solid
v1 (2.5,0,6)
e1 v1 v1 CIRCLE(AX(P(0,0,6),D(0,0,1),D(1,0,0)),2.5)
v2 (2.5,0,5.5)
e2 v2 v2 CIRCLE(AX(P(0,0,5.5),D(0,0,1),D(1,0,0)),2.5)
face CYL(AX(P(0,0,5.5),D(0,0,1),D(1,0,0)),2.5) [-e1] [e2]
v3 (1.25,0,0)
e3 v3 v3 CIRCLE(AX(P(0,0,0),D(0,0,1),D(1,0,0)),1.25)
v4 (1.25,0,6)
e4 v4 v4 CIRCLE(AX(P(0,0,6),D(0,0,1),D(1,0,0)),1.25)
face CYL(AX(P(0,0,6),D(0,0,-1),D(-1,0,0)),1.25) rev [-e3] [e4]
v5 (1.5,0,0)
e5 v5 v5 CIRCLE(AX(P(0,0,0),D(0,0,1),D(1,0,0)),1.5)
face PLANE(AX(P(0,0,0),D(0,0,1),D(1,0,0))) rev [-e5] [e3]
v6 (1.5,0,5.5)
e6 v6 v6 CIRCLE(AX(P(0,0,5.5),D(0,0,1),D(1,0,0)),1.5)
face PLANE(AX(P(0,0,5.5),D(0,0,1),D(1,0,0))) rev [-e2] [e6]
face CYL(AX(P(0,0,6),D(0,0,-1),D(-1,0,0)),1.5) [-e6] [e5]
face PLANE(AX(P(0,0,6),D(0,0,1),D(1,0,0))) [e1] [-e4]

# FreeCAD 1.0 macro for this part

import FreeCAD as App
import Part
import Sketcher

V = App.Vector
Q = App.Units.Quantity

doc = App.newDocument("Part")
body = doc.addObject("PartDesign::Body", "Body")

# Sketch on XY plane
sketch1 = body.newObject("Sketcher::SketchObject", "Sketch")
sketch1.AttachmentSupport = (doc.getObject("XY_Plane"), [""])
sketch1.MapMode = "FlatFace"
sketch1.addGeometry([
    Part.Circle(V(0, 0, 0), V(0, 0, 1), 1.5),
    Part.Circle(V(0, 0, 0), V(0, 0, 1), 1.2),
], False)
sketch1.addConstraint([
    Sketcher.Constraint("Coincident", 0, 3, -1, 1),
    Sketcher.Constraint("Coincident", 1, 3, -1, 1),
    Sketcher.Constraint("Diameter", 0, Q("3 mm")),
    Sketcher.Constraint("Diameter", 1, Q("2.5 mm")),
])
pad1 = body.newObject("PartDesign::Pad", "Pad")
pad1.Profile = sketch1
pad1.Length = 6

# Sketch on XY plane
sketch2 = body.newObject("Sketcher::SketchObject", "Sketch001")
sketch2.AttachmentSupport = (doc.getObject("XY_Plane"), [""])
sketch2.MapMode = "FlatFace"
sketch2.AttachmentOffset = App.Placement(V(0, 0, 6), App.Rotation())
sketch2.addGeometry([
    Part.Circle(V(0, 0, 0), V(0, 0, 1), 2.5),
    Part.Circle(V(0, 0, 0), V(0, 0, 1), 1.2),
], False)
sketch2.addConstraint([
    Sketcher.Constraint("Coincident", 0, 3, -1, 1),
    Sketcher.Constraint("Coincident", 1, 3, -1, 1),
    Sketcher.Constraint("Diameter", 0, Q("5 mm")),
    Sketcher.Constraint("Diameter", 1, Q("2.5 mm")),
])
pad2 = body.newObject("PartDesign::Pad", "Pad001")
pad2.Profile = sketch2
pad2.Length = 0.5
pad2.Reversed = True

doc.recompute()
